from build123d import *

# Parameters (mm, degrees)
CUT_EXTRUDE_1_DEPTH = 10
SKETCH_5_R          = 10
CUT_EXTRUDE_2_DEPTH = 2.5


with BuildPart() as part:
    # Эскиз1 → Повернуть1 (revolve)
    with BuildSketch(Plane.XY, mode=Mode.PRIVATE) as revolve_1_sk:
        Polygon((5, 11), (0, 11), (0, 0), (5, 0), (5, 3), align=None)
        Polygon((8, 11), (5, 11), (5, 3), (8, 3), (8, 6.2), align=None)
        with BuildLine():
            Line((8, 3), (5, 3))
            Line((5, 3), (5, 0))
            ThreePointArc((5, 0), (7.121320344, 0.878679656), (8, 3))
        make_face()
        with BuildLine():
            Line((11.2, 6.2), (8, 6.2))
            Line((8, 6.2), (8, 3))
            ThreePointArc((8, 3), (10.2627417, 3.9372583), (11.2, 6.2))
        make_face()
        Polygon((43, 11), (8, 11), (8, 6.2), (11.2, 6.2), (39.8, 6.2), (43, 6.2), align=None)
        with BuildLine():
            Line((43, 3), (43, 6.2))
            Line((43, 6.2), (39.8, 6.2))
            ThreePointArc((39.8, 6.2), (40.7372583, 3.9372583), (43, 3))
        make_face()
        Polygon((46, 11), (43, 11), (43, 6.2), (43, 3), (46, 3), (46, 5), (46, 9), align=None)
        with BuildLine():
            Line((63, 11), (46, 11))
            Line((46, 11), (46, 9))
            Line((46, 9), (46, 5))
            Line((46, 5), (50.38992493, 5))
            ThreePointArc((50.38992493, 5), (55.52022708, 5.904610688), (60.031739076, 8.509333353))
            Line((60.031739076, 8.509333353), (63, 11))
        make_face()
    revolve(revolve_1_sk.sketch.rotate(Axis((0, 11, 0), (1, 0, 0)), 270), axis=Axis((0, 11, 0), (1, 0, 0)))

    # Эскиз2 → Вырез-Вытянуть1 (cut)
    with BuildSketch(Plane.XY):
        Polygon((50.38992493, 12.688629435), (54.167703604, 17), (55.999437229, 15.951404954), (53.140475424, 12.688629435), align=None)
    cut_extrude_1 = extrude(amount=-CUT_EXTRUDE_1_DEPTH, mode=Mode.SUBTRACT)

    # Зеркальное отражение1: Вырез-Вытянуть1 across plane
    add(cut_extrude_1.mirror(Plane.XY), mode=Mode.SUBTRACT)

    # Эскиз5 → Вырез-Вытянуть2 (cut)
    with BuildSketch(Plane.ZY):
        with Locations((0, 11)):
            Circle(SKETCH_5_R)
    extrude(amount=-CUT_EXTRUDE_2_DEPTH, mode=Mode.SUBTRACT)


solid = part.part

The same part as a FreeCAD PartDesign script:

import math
import FreeCAD as App
import Part
import Sketcher
from FreeCAD import Vector
Q = App.Units.Quantity

doc = App.newDocument("Part")
body = doc.addObject("PartDesign::Body", "Body")

# Sketch on XY plane
sketch1 = body.newObject("Sketcher::SketchObject", "Sketch")
sketch1.AttachmentSupport = (doc.getObject("XY_Plane"), [""])
sketch1.MapMode = "FlatFace"
sketch1.addGeometry(Part.LineSegment(Vector(0, 11, 0), Vector(0, 0, 0)), False)
sketch1.addGeometry(Part.LineSegment(Vector(0, 0, 0), Vector(5, 0, 0)), False)
sketch1.addGeometry(Part.ArcOfCircle(Part.Circle(Vector(5, 3, 0), Vector(0, 0, 1), 3), math.radians(-90), math.radians(0)), False)
sketch1.addGeometry(Part.ArcOfCircle(Part.Circle(Vector(8, 6.2, 0), Vector(0, 0, 1), 3.2), math.radians(-90), math.radians(0)), False)
sketch1.addGeometry(Part.LineSegment(Vector(11.2, 6.2, 0), Vector(39.8, 6.2, 0)), False)
sketch1.addGeometry(Part.ArcOfCircle(Part.Circle(Vector(43, 6.2, 0), Vector(0, 0, 1), 3.2), math.radians(180), math.radians(270)), False)
sketch1.addGeometry(Part.LineSegment(Vector(43, 3, 0), Vector(46, 3, 0)), False)
sketch1.addGeometry(Part.LineSegment(Vector(46, 3, 0), Vector(46, 5, 0)), False)
sketch1.addGeometry(Part.LineSegment(Vector(46, 5, 0), Vector(50.4, 5, 0)), False)
sketch1.addGeometry(Part.ArcOfCircle(Part.Circle(Vector(50.4, 20, 0), Vector(0, 0, 1), 15), math.radians(-90), math.radians(-50)), False)
sketch1.addGeometry(Part.LineSegment(Vector(60, 8.5, 0), Vector(63, 11, 0)), False)
sketch1.addGeometry(Part.LineSegment(Vector(63, 11, 0), Vector(0, 11, 0)), False)
sketch1.addGeometry(Part.LineSegment(Vector(0, 11, 0), Vector(63, 11, 0)), True)  # axis
sketch1.addConstraint(Sketcher.Constraint("Coincident", 0, 2, 1, 1))
sketch1.addConstraint(Sketcher.Constraint("Tangent", 1, 2, 2, 1))
sketch1.addConstraint(Sketcher.Constraint("Coincident", 2, 2, 3, 1))
sketch1.addConstraint(Sketcher.Constraint("Coincident", 3, 2, 4, 1))
sketch1.addConstraint(Sketcher.Constraint("Coincident", 4, 2, 5, 1))
sketch1.addConstraint(Sketcher.Constraint("Tangent", 5, 2, 6, 1))
sketch1.addConstraint(Sketcher.Constraint("Coincident", 6, 2, 7, 1))
sketch1.addConstraint(Sketcher.Constraint("Coincident", 7, 2, 8, 1))
sketch1.addConstraint(Sketcher.Constraint("Tangent", 8, 2, 9, 1))
sketch1.addConstraint(Sketcher.Constraint("Tangent", 9, 2, 10, 1))
sketch1.addConstraint(Sketcher.Constraint("Coincident", 10, 2, 11, 1))
sketch1.addConstraint(Sketcher.Constraint("Coincident", 11, 2, 0, 1))
sketch1.addConstraint(Sketcher.Constraint("Vertical", 0))
sketch1.addConstraint(Sketcher.Constraint("Horizontal", 1))
sketch1.addConstraint(Sketcher.Constraint("Horizontal", 4))
sketch1.addConstraint(Sketcher.Constraint("Horizontal", 6))
sketch1.addConstraint(Sketcher.Constraint("Vertical", 7))
sketch1.addConstraint(Sketcher.Constraint("Horizontal", 8))
sketch1.addConstraint(Sketcher.Constraint("Horizontal", 11))
sketch1.addConstraint(Sketcher.Constraint("Horizontal", 12))
sketch1.addConstraint(Sketcher.Constraint("Coincident", 0, 2, -1, 1))
sketch1.addConstraint(Sketcher.Constraint("Coincident", 12, 1, 11, 2))
sketch1.addConstraint(Sketcher.Constraint("Equal", 3, 5))
sketch1.addConstraint(Sketcher.Constraint("Horizontal", 3, 3, 5, 3))
sketch1.addConstraint(Sketcher.Constraint("Horizontal", 5, 3, 3, 2))
sketch1.addConstraint(Sketcher.Constraint("Vertical", 3, 3, 2, 2))
sketch1.addConstraint(Sketcher.Constraint("Equal", 11, 12))
sketch1.addConstraint(Sketcher.Constraint("Radius", 2, 3.0))
sketch1.addConstraint(Sketcher.Constraint("Radius", 9, 15.0))
sketch1.addConstraint(Sketcher.Constraint("Radius", 3, 3.2))
sketch1.addConstraint(Sketcher.Constraint("DistanceX", 1, 1, 1, 2, 5.0))
sketch1.addConstraint(Sketcher.Constraint("DistanceX", 6, 1, 6, 2, 3.0))
sketch1.addConstraint(Sketcher.Constraint("DistanceX", 11, 2, 11, 1, 63.0))
sketch1.addConstraint(Sketcher.Constraint("DistanceY", 0, 2, 0, 1, 11.0))
sketch1.addConstraint(Sketcher.Constraint("DistanceY", 7, 1, 7, 2, 2.0))
sketch1.addConstraint(Sketcher.Constraint("Angle", 10, Q("40 deg")))
sketch1.addConstraint(Sketcher.Constraint("DistanceX", 4, 1, 4, 2, 28.6))
sketch1.addConstraint(Sketcher.Constraint("DistanceY", -1, 1, 9, 3, 20.0))
revolution = body.newObject("PartDesign::Revolution", "Revolution")
revolution.Profile = sketch1
revolution.ReferenceAxis = (sketch1, ["Axis0"])
revolution.Angle = 360

# Sketch on XY plane
sketch2 = body.newObject("Sketcher::SketchObject", "Sketch001")
sketch2.AttachmentSupport = (doc.getObject("XY_Plane"), [""])
sketch2.MapMode = "FlatFace"
sketch2.addGeometry(Part.LineSegment(Vector(54.2, 17, 0), Vector(50.4, 12.7, 0)), False)
sketch2.addGeometry(Part.LineSegment(Vector(50.4, 12.7, 0), Vector(53.1, 12.7, 0)), False)
sketch2.addGeometry(Part.LineSegment(Vector(53.1, 12.7, 0), Vector(56, 16, 0)), False)
sketch2.addGeometry(Part.LineSegment(Vector(56, 16, 0), Vector(54.2, 17, 0)), False)
sketch2.addConstraint(Sketcher.Constraint("Coincident", 0, 2, 1, 1))
sketch2.addConstraint(Sketcher.Constraint("Coincident", 1, 2, 2, 1))
sketch2.addConstraint(Sketcher.Constraint("Coincident", 2, 2, 3, 1))
sketch2.addConstraint(Sketcher.Constraint("Coincident", 3, 2, 0, 1))
sketch2.addConstraint(Sketcher.Constraint("Horizontal", 1))
sketch2.addConstraint(Sketcher.Constraint("Parallel", 0, 2))
sketch2.addConstraint(Sketcher.Constraint("DistanceY", -1, 1, 3, 2, 17.0))
sketch2.addConstraint(Sketcher.Constraint("DistanceX", 1, 1, 1, 2, 2.75055))
sketch2.addConstraint(Sketcher.Constraint("Distance", 2, 4.338129))
sketch2.addConstraint(Sketcher.Constraint("Distance", 3, 2.11064))
sketch2.addConstraint(Sketcher.Constraint("DistanceY", -1, 1, 0, 2, 12.688629))
sketch2.addConstraint(Sketcher.Constraint("DistanceX", -1, 1, 0, 2, 50.389925))
pocket1 = body.newObject("PartDesign::Pocket", "Pocket")
pocket1.Profile = sketch2
pocket1.Length = 10
doc.recompute()

mirrored = body.newObject("PartDesign::Mirrored", "Mirrored")
mirrored.Originals = [pocket1]
mirrored.MirrorPlane = (doc.getObject("XY_Plane"), [""])
body.Tip = mirrored

# Sketch on YZ plane
sketch3 = body.newObject("Sketcher::SketchObject", "Sketch002")
sketch3.AttachmentSupport = (doc.getObject("YZ_Plane"), [""])
sketch3.MapMode = "FlatFace"
sketch3.addGeometry(Part.Circle(Vector(11, 0, 0), Vector(0, 0, 1), 10), False)
sketch3.addConstraint(Sketcher.Constraint("PointOnObject", 0, 3, -1))
sketch3.addConstraint(Sketcher.Constraint("Diameter", 0, 20.0))
sketch3.addConstraint(Sketcher.Constraint("DistanceX", -1, 1, 0, 3, 11.0))
pocket2 = body.newObject("PartDesign::Pocket", "Pocket001")
pocket2.Profile = sketch3
pocket2.Length = 2.5
pocket2.Reversed = True

doc.recompute()
